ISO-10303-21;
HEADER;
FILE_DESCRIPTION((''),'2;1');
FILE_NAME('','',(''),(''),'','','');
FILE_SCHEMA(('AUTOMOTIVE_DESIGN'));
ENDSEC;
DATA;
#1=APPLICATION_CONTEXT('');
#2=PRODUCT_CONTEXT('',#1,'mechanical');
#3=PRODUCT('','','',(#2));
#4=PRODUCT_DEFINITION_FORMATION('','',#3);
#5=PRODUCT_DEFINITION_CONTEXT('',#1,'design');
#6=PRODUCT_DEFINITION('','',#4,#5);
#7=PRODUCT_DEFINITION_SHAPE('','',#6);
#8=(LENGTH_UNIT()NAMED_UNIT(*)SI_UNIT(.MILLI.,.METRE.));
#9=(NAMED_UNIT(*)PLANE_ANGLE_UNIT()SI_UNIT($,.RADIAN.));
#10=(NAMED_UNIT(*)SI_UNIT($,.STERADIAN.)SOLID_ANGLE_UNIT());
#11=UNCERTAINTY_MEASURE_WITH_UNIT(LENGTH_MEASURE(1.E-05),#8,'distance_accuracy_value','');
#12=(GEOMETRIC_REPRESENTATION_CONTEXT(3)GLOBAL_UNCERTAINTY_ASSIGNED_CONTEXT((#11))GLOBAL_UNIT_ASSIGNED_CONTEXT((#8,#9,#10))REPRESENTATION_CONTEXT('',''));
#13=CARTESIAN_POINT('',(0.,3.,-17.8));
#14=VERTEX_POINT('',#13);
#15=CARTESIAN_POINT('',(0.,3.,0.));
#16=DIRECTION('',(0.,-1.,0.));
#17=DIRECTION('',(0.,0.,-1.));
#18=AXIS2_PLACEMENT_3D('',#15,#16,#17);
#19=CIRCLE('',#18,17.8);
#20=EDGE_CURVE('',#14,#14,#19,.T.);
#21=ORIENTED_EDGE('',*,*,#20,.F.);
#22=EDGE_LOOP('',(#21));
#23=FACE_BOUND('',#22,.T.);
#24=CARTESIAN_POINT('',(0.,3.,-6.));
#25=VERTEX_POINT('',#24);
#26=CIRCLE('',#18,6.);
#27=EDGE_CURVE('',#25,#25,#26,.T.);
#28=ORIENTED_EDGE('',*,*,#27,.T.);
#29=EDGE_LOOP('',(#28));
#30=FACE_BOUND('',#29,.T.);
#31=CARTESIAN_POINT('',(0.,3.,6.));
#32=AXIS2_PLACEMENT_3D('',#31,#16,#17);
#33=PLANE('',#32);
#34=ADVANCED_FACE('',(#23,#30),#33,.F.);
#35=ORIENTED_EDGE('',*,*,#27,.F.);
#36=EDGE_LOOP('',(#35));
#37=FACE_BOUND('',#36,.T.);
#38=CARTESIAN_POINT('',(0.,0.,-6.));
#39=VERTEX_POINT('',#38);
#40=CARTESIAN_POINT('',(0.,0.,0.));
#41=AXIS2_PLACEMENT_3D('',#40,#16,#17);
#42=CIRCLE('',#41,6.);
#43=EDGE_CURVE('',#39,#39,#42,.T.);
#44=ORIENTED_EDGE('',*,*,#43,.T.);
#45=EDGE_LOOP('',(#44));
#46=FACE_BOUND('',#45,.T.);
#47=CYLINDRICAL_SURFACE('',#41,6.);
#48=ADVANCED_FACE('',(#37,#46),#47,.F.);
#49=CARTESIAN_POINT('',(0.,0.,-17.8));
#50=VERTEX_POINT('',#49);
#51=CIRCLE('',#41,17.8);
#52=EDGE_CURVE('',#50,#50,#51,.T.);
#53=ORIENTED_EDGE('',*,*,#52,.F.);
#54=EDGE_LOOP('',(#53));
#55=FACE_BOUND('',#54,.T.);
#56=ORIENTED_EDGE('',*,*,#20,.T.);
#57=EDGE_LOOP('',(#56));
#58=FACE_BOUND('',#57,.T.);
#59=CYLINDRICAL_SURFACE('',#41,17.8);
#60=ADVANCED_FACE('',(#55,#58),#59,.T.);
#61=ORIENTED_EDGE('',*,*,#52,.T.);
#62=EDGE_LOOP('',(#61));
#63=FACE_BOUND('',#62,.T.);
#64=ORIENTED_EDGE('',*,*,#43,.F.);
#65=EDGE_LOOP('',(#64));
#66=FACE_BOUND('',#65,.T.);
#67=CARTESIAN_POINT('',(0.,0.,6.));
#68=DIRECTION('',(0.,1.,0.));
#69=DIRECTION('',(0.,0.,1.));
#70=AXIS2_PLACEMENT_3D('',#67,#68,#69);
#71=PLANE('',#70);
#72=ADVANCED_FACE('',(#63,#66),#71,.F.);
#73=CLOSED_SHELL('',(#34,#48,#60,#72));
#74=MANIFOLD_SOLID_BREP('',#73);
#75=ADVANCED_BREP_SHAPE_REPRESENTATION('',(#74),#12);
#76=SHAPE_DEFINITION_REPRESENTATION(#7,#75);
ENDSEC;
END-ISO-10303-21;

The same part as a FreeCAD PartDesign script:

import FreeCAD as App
import Part
import Sketcher

V = App.Vector
Q = App.Units.Quantity


def add_polygon(sketch, points):
    """Adds a closed chain of lines whose ends are joined by coincident constraints."""
    first, n = sketch.GeometryCount, len(points)
    for a, b in zip(points, points[1:] + points[:1]):
        sketch.addGeometry(Part.LineSegment(App.Vector(*a, 0), App.Vector(*b, 0)), False)
    for i in range(n):
        sketch.addConstraint(Sketcher.Constraint("Coincident", first + i, 2, first + (i + 1) % n, 1))

doc = App.newDocument("Part")
body = doc.addObject("PartDesign::Body", "Body")

# Sketch on YZ plane
sketch1 = doc.addObject("Sketcher::SketchObject", "Sketch")
body.addObject(sketch1)
sketch1.AttachmentSupport = (doc.YZ_Plane, [""])
sketch1.MapMode = "FlatFace"
add_polygon(sketch1, [(3, 17.8), (0, 17.8), (0, 6), (3, 6)])  # lines 0-3
sketch1.addConstraint([
    Sketcher.Constraint("Horizontal", 0),
    Sketcher.Constraint("Vertical", 1),
    Sketcher.Constraint("Horizontal", 2),
    Sketcher.Constraint("Vertical", 3),
    Sketcher.Constraint("PointOnObject", 0, 2, -2),
    Sketcher.Constraint("DistanceX", 0, 2, 0, 1, Q("3 mm")),
    Sketcher.Constraint("DistanceY", 1, 2, 1, 1, Q("11.8 mm")),
    Sketcher.Constraint("DistanceY", -1, 1, 1, 2, Q("6 mm")),
])
revolution = doc.addObject("PartDesign::Revolution", "Revolution")
body.addObject(revolution)
revolution.Profile = sketch1
revolution.ReferenceAxis = (sketch1, ["H_Axis"])
revolution.Angle = 360

doc.recompute()
